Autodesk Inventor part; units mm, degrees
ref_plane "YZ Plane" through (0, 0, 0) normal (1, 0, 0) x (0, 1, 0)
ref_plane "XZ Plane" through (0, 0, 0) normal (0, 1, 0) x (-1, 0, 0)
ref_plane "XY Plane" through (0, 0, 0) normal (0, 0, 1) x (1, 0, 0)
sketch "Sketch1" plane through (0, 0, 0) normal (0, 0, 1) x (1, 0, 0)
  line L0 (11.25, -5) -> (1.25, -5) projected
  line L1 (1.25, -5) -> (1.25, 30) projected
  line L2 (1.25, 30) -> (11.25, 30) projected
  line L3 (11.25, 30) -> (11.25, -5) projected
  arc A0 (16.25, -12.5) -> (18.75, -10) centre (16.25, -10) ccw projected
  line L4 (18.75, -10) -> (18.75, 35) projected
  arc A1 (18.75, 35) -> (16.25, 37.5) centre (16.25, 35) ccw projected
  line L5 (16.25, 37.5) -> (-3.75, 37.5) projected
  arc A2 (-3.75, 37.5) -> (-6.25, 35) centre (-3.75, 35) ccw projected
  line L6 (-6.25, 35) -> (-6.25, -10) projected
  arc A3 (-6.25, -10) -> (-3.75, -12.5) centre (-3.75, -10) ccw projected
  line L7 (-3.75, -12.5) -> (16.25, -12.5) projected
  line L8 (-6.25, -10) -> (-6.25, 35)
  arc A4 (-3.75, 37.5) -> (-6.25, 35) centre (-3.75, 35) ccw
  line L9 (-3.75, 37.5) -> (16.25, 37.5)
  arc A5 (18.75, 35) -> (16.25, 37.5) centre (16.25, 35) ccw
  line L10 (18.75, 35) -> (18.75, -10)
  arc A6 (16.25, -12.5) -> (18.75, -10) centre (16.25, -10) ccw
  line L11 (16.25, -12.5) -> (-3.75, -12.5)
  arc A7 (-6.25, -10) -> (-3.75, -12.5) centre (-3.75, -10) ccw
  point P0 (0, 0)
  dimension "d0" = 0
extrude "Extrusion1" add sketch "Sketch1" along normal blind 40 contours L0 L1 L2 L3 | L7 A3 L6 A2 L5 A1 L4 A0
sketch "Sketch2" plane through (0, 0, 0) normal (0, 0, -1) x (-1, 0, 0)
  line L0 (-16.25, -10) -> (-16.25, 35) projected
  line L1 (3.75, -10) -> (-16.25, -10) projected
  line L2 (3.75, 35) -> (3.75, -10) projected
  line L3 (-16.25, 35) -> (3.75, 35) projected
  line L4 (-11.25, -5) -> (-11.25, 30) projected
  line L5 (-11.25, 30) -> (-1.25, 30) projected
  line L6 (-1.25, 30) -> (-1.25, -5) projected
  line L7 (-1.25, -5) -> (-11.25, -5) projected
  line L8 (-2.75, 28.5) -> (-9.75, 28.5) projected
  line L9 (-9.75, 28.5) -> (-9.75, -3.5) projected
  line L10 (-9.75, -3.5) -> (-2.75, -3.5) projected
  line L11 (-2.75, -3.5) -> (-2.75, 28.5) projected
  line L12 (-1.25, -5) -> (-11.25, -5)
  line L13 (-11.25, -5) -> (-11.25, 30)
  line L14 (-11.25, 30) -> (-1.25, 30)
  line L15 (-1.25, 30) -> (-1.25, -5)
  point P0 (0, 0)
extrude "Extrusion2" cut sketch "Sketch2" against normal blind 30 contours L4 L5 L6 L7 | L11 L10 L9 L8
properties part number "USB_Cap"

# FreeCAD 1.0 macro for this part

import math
import FreeCAD as App
import Part
import Sketcher


def add_polygon(sketch, points):
    """Adds a closed chain of lines whose ends are joined by coincident constraints."""
    first, n = sketch.GeometryCount, len(points)
    for a, b in zip(points, points[1:] + points[:1]):
        sketch.addGeometry(Part.LineSegment(App.Vector(*a, 0), App.Vector(*b, 0)), False)
    for i in range(n):
        sketch.addConstraint(Sketcher.Constraint("Coincident", first + i, 2, first + (i + 1) % n, 1))

doc = App.newDocument("Part")
body = doc.addObject("PartDesign::Body", "Body")

# Sketch on XY plane
sketch1 = body.newObject("Sketcher::SketchObject", "Sketch")
sketch1.AttachmentSupport = (doc.getObject("XY_Plane"), [""])
sketch1.MapMode = "FlatFace"
sketch1.addGeometry([
    Part.LineSegment(App.Vector(-3.75, -12.5, 0), App.Vector(16.25, -12.5, 0)),  # 0
    Part.ArcOfCircle(Part.Circle(App.Vector(16.25, -10, 0), App.Vector(0, 0, 1), 2.5), math.radians(-90), math.radians(0)),  # 1
    Part.LineSegment(App.Vector(18.75, -10, 0), App.Vector(18.75, 35, 0)),  # 2
    Part.ArcOfCircle(Part.Circle(App.Vector(16.25, 35, 0), App.Vector(0, 0, 1), 2.5), math.radians(0), math.radians(90)),  # 3
    Part.LineSegment(App.Vector(16.25, 37.5, 0), App.Vector(-3.75, 37.5, 0)),  # 4
    Part.ArcOfCircle(Part.Circle(App.Vector(-3.75, 35, 0), App.Vector(0, 0, 1), 2.5), math.radians(90), math.radians(180)),  # 5
    Part.LineSegment(App.Vector(-6.25, 35, 0), App.Vector(-6.25, -10, 0)),  # 6
    Part.ArcOfCircle(Part.Circle(App.Vector(-3.75, -10, 0), App.Vector(0, 0, 1), 2.5), math.radians(180), math.radians(270)),  # 7
], False)
sketch1.addConstraint([
    Sketcher.Constraint("Tangent", 0, 2, 1, 1),
    Sketcher.Constraint("Tangent", 1, 2, 2, 1),
    Sketcher.Constraint("Tangent", 2, 2, 3, 1),
    Sketcher.Constraint("Tangent", 3, 2, 4, 1),
    Sketcher.Constraint("Tangent", 4, 2, 5, 1),
    Sketcher.Constraint("Tangent", 5, 2, 6, 1),
    Sketcher.Constraint("Tangent", 6, 2, 7, 1),
    Sketcher.Constraint("Tangent", 7, 2, 0, 1),
    Sketcher.Constraint("Horizontal", 0),
    Sketcher.Constraint("Vertical", 2),
    Sketcher.Constraint("Horizontal", 4),
    Sketcher.Constraint("Vertical", 6),
    Sketcher.Constraint("Equal", 1, 3),
    Sketcher.Constraint("Equal", 3, 5),
    Sketcher.Constraint("Equal", 5, 7),
    Sketcher.Constraint("Radius", 1, 2.5),
    Sketcher.Constraint("DistanceX", 0, 1, 0, 2, 20.0),
    Sketcher.Constraint("DistanceY", 2, 1, 2, 2, 45.0),
    Sketcher.Constraint("DistanceY", 1, 3, -1, 1, 10.0),
    Sketcher.Constraint("DistanceX", -1, 1, 1, 3, 16.25),
])
pad1 = body.newObject("PartDesign::Pad", "Pad")
pad1.Profile = sketch1
pad1.Length = 40

# Sketch on XY plane
sketch2 = body.newObject("Sketcher::SketchObject", "Sketch001")
sketch2.AttachmentSupport = (doc.getObject("XY_Plane"), [""])
sketch2.MapMode = "FlatFace"
add_polygon(sketch2, [(11.25, 30), (11.25, -5), (1.25, -5), (1.25, 30)])  # lines 0-3
sketch2.addConstraint([
    Sketcher.Constraint("Vertical", 0),
    Sketcher.Constraint("Horizontal", 1),
    Sketcher.Constraint("Vertical", 2),
    Sketcher.Constraint("Horizontal", 3),
    Sketcher.Constraint("DistanceX", 1, 2, 1, 1, 10.0),
    Sketcher.Constraint("DistanceY", 0, 2, 0, 1, 35.0),
    Sketcher.Constraint("DistanceY", 0, 2, -1, 1, 5.0),
    Sketcher.Constraint("DistanceX", -1, 1, 0, 2, 11.25),
])
pocket1 = body.newObject("PartDesign::Pocket", "Pocket")
pocket1.Profile = sketch2
pocket1.Length = 30
pocket1.Reversed = True

doc.recompute()
